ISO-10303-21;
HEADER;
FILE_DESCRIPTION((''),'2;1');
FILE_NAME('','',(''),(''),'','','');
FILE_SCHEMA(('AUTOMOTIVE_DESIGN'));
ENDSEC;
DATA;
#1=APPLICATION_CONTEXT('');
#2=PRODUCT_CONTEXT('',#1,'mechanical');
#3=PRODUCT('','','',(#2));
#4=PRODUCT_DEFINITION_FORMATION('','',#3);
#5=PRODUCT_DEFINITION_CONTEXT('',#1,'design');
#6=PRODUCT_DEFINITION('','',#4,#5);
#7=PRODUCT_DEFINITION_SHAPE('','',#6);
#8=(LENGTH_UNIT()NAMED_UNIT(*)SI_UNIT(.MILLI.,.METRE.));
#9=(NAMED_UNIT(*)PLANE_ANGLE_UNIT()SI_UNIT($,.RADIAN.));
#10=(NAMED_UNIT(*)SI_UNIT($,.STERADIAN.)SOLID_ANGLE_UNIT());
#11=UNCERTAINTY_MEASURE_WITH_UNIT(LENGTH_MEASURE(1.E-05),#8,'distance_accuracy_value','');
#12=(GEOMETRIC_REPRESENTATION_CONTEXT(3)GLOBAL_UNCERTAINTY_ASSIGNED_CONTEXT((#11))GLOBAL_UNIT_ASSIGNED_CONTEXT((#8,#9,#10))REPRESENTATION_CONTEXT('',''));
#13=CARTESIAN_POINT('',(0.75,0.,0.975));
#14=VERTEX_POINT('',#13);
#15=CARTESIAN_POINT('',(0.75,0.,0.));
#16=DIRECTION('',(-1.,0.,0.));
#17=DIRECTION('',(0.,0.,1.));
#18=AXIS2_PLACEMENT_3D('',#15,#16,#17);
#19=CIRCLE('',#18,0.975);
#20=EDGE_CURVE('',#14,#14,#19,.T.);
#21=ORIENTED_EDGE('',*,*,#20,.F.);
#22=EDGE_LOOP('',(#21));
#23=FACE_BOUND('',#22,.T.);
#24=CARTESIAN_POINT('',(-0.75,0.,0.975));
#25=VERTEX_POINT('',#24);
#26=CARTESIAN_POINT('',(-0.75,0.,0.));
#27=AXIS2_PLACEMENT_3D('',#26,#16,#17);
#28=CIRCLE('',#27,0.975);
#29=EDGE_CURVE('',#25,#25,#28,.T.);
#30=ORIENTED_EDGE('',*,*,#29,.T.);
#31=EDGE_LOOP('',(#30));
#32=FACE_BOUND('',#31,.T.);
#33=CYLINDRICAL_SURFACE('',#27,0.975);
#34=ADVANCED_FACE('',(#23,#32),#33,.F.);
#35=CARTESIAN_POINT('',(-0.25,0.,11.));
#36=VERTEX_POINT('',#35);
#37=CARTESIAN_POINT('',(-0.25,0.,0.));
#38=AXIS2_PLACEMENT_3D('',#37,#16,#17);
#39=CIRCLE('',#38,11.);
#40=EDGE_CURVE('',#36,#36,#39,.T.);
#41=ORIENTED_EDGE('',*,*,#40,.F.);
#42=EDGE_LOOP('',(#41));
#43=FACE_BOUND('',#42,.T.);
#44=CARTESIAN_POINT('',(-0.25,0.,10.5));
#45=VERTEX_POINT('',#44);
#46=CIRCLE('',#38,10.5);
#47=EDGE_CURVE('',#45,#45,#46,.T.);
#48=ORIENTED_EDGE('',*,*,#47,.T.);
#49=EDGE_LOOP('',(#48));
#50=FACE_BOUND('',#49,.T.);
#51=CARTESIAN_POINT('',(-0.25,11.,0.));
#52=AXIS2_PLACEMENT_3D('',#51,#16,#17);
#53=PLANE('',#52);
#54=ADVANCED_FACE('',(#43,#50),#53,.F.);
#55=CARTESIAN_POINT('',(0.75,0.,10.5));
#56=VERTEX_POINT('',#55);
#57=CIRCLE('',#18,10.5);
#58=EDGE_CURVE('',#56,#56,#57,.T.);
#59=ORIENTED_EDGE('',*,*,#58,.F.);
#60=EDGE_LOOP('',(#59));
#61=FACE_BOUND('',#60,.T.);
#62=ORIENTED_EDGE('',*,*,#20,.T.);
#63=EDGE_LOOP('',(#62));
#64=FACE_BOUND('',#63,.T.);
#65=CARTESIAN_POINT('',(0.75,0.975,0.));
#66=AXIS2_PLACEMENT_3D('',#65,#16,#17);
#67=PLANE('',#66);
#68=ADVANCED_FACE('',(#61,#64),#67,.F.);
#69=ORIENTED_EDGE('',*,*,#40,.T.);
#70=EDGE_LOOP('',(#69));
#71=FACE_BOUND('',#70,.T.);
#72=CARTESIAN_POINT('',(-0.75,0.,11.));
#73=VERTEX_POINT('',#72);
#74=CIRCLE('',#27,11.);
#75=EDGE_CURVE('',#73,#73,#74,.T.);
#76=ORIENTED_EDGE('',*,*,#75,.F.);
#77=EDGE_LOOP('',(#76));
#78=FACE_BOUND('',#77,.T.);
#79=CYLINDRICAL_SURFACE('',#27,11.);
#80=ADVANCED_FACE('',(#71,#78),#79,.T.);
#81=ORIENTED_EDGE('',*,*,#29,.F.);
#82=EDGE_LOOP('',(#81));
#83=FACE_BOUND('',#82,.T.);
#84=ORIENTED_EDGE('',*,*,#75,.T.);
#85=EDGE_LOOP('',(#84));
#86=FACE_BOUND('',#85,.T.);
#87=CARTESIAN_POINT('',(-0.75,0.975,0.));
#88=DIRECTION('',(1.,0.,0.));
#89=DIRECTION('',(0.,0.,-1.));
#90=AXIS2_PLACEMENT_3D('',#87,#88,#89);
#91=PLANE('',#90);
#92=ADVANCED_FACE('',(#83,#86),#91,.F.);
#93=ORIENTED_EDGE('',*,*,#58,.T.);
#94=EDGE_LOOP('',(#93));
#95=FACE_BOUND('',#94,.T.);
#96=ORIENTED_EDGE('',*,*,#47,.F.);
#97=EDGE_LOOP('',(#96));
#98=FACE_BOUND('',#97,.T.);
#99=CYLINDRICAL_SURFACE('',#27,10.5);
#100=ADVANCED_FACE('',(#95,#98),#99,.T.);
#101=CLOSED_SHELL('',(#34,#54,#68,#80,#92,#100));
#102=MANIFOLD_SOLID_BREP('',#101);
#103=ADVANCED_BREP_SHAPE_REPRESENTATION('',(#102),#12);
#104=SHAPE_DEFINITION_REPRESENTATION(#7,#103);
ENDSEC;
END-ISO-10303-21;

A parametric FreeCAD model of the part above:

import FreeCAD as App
import Part
import Sketcher


def add_polygon(sketch, points):
    """Adds a closed chain of lines whose ends are joined by coincident constraints."""
    first, n = sketch.GeometryCount, len(points)
    for a, b in zip(points, points[1:] + points[:1]):
        sketch.addGeometry(Part.LineSegment(App.Vector(*a, 0), App.Vector(*b, 0)), False)
    for i in range(n):
        sketch.addConstraint(Sketcher.Constraint("Coincident", first + i, 2, first + (i + 1) % n, 1))

doc = App.newDocument("Part")
params = doc.addObject("Spreadsheet::Sheet", "Params")
for row, (alias, value) in enumerate([
    ("sketch1_width", "1 mm"),
    ("sketch1_width2", "0.5 mm"),
    ("revolution_angle", "360 deg"),
], start=1):
    params.set(f"A{row}", alias)
    params.set(f"B{row}", "=" + value)
    params.setAlias(f"B{row}", alias)

body = doc.addObject("PartDesign::Body", "Body")

# Sketch on XY plane
sketch1 = doc.addObject("Sketcher::SketchObject", "Sketch")
body.addObject(sketch1)
sketch1.AttachmentSupport = (doc.XY_Plane, [""])
sketch1.MapMode = "FlatFace"
add_polygon(sketch1, [(-0.2, 11), (-0.8, 11), (-0.8, 1), (0.8, 1), (0.8, 10.5), (-0.2, 10.5)])  # lines 0-5
sketch1.addConstraint([
    Sketcher.Constraint("Horizontal", 0),
    Sketcher.Constraint("Vertical", 1),
    Sketcher.Constraint("Horizontal", 2),
    Sketcher.Constraint("Vertical", 3),
    Sketcher.Constraint("Horizontal", 4),
    Sketcher.Constraint("Vertical", 5),
    Sketcher.Constraint("Equal", 0, 5),
    Sketcher.Constraint("DistanceX", 4, 2, 4, 1, 1.0),
    Sketcher.Constraint("DistanceX", 0, 2, 0, 1, 0.5),
    Sketcher.Constraint("DistanceY", -1, 1, 0, 2, 11.0),
    Sketcher.Constraint("DistanceY", 1, 2, 1, 1, 10.025),
    Sketcher.Constraint("DistanceX", 0, 2, -1, 1, 0.75),
])
sketch1.setExpression("Constraints[13]", "Params.sketch1_width")
sketch1.setExpression("Constraints[14]", "Params.sketch1_width2")
revolution = doc.addObject("PartDesign::Revolution", "Revolution")
body.addObject(revolution)
revolution.Profile = sketch1
revolution.ReferenceAxis = (sketch1, ["H_Axis"])
revolution.setExpression("Angle", "Params.revolution_angle")

doc.recompute()
